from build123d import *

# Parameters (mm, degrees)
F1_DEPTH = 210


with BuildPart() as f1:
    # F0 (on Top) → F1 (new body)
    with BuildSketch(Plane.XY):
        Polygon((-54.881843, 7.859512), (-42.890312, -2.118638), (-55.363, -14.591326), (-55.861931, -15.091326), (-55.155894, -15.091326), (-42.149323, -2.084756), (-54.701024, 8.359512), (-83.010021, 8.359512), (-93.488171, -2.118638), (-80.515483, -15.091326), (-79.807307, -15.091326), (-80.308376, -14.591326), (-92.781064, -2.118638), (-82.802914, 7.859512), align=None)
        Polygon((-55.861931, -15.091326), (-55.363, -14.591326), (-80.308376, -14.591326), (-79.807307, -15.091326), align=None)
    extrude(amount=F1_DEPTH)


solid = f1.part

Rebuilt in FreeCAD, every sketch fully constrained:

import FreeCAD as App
import Part
import Sketcher

V = App.Vector
Q = App.Units.Quantity

doc = App.newDocument("Part")
body = doc.addObject("PartDesign::Body", "Body")

sketch1 = body.newObject("Sketcher::SketchObject", "Sketch")
sketch1.AttachmentSupport = (doc.getObject("XY_Plane"), [""])
sketch1.MapMode = "FlatFace"
sketch1.addGeometry([
    Part.LineSegment(V(-55.155894, -15.091326, 0), V(-42.149323, -2.084756, 0)),
    Part.LineSegment(V(-42.149323, -2.084756, 0), V(-54.701024, 8.359512, 0)),
    Part.LineSegment(V(-54.701024, 8.359512, 0), V(-83.010021, 8.359512, 0)),
    Part.LineSegment(V(-83.010021, 8.359512, 0), V(-93.488171, -2.118638, 0)),
    Part.LineSegment(V(-93.488171, -2.118638, 0), V(-80.515483, -15.091326, 0)),
    Part.LineSegment(V(-80.515483, -15.091326, 0), V(-55.155894, -15.091326, 0)),
    Part.LineSegment(V(-54.881843, 7.859512, 0), V(-42.890312, -2.118638, 0)),
    Part.LineSegment(V(-42.890312, -2.118638, 0), V(-55.363, -14.591326, 0)),
    Part.LineSegment(V(-55.363, -14.591326, 0), V(-80.308376, -14.591326, 0)),
    Part.LineSegment(V(-80.308376, -14.591326, 0), V(-92.781064, -2.118638, 0)),
    Part.LineSegment(V(-92.781064, -2.118638, 0), V(-82.802914, 7.859512, 0)),
    Part.LineSegment(V(-82.802914, 7.859512, 0), V(-54.881843, 7.859512, 0)),
], False)
sketch1.addConstraint([
    Sketcher.Constraint("Coincident", 0, 2, 1, 1),
    Sketcher.Constraint("Coincident", 1, 2, 2, 1),
    Sketcher.Constraint("Coincident", 2, 2, 3, 1),
    Sketcher.Constraint("Coincident", 3, 2, 4, 1),
    Sketcher.Constraint("Coincident", 4, 2, 5, 1),
    Sketcher.Constraint("Coincident", 5, 2, 0, 1),
    Sketcher.Constraint("Coincident", 6, 2, 7, 1),
    Sketcher.Constraint("Coincident", 7, 2, 8, 1),
    Sketcher.Constraint("Coincident", 8, 2, 9, 1),
    Sketcher.Constraint("Coincident", 9, 2, 10, 1),
    Sketcher.Constraint("Coincident", 10, 2, 11, 1),
    Sketcher.Constraint("Coincident", 11, 2, 6, 1),
    Sketcher.Constraint("Horizontal", 2),
    Sketcher.Constraint("Horizontal", 5),
    Sketcher.Constraint("Horizontal", 8),
    Sketcher.Constraint("Horizontal", 11),
    Sketcher.Constraint("Parallel", 0, 3),
    Sketcher.Constraint("Perpendicular", 3, 4),
    Sketcher.Constraint("Parallel", 1, 6),
    Sketcher.Constraint("Perpendicular", 4, 7),
    Sketcher.Constraint("Perpendicular", 7, 9),
    Sketcher.Constraint("Perpendicular", 9, 10),
    Sketcher.Constraint("Horizontal", 3, 2, 6, 2),
    Sketcher.Constraint("Horizontal", 6, 2, 9, 2),
    Sketcher.Constraint("Equal", 7, 9),
    Sketcher.Constraint("DistanceY", 5, 2, 7, 2, Q("0.5 mm")),
    Sketcher.Constraint("DistanceY", 10, 2, 2, 2, Q("0.5 mm")),
    Sketcher.Constraint("DistanceX", 7, 2, -1, 1, Q("55.363 mm")),
    Sketcher.Constraint("DistanceX", 5, 1, 5, 2, Q("25.359589 mm")),
    Sketcher.Constraint("DistanceX", 11, 1, 11, 2, Q("27.921071 mm")),
    Sketcher.Constraint("DistanceX", 1, 2, 0, 2, Q("12.551701 mm")),
    Sketcher.Constraint("Distance", 0, Q("18.394068 mm")),
    Sketcher.Constraint("Distance", 3, Q("14.818342 mm")),
    Sketcher.Constraint("Distance", 4, Q("18.346151 mm")),
    Sketcher.Constraint("DistanceX", 2, 2, -1, 1, Q("83.010021 mm")),
    Sketcher.Constraint("DistanceY", -1, 1, 10, 2, Q("7.859512 mm")),
])
pad1 = body.newObject("PartDesign::Pad", "Pad")
pad1.Profile = sketch1
pad1.Length = 210

doc.recompute()
